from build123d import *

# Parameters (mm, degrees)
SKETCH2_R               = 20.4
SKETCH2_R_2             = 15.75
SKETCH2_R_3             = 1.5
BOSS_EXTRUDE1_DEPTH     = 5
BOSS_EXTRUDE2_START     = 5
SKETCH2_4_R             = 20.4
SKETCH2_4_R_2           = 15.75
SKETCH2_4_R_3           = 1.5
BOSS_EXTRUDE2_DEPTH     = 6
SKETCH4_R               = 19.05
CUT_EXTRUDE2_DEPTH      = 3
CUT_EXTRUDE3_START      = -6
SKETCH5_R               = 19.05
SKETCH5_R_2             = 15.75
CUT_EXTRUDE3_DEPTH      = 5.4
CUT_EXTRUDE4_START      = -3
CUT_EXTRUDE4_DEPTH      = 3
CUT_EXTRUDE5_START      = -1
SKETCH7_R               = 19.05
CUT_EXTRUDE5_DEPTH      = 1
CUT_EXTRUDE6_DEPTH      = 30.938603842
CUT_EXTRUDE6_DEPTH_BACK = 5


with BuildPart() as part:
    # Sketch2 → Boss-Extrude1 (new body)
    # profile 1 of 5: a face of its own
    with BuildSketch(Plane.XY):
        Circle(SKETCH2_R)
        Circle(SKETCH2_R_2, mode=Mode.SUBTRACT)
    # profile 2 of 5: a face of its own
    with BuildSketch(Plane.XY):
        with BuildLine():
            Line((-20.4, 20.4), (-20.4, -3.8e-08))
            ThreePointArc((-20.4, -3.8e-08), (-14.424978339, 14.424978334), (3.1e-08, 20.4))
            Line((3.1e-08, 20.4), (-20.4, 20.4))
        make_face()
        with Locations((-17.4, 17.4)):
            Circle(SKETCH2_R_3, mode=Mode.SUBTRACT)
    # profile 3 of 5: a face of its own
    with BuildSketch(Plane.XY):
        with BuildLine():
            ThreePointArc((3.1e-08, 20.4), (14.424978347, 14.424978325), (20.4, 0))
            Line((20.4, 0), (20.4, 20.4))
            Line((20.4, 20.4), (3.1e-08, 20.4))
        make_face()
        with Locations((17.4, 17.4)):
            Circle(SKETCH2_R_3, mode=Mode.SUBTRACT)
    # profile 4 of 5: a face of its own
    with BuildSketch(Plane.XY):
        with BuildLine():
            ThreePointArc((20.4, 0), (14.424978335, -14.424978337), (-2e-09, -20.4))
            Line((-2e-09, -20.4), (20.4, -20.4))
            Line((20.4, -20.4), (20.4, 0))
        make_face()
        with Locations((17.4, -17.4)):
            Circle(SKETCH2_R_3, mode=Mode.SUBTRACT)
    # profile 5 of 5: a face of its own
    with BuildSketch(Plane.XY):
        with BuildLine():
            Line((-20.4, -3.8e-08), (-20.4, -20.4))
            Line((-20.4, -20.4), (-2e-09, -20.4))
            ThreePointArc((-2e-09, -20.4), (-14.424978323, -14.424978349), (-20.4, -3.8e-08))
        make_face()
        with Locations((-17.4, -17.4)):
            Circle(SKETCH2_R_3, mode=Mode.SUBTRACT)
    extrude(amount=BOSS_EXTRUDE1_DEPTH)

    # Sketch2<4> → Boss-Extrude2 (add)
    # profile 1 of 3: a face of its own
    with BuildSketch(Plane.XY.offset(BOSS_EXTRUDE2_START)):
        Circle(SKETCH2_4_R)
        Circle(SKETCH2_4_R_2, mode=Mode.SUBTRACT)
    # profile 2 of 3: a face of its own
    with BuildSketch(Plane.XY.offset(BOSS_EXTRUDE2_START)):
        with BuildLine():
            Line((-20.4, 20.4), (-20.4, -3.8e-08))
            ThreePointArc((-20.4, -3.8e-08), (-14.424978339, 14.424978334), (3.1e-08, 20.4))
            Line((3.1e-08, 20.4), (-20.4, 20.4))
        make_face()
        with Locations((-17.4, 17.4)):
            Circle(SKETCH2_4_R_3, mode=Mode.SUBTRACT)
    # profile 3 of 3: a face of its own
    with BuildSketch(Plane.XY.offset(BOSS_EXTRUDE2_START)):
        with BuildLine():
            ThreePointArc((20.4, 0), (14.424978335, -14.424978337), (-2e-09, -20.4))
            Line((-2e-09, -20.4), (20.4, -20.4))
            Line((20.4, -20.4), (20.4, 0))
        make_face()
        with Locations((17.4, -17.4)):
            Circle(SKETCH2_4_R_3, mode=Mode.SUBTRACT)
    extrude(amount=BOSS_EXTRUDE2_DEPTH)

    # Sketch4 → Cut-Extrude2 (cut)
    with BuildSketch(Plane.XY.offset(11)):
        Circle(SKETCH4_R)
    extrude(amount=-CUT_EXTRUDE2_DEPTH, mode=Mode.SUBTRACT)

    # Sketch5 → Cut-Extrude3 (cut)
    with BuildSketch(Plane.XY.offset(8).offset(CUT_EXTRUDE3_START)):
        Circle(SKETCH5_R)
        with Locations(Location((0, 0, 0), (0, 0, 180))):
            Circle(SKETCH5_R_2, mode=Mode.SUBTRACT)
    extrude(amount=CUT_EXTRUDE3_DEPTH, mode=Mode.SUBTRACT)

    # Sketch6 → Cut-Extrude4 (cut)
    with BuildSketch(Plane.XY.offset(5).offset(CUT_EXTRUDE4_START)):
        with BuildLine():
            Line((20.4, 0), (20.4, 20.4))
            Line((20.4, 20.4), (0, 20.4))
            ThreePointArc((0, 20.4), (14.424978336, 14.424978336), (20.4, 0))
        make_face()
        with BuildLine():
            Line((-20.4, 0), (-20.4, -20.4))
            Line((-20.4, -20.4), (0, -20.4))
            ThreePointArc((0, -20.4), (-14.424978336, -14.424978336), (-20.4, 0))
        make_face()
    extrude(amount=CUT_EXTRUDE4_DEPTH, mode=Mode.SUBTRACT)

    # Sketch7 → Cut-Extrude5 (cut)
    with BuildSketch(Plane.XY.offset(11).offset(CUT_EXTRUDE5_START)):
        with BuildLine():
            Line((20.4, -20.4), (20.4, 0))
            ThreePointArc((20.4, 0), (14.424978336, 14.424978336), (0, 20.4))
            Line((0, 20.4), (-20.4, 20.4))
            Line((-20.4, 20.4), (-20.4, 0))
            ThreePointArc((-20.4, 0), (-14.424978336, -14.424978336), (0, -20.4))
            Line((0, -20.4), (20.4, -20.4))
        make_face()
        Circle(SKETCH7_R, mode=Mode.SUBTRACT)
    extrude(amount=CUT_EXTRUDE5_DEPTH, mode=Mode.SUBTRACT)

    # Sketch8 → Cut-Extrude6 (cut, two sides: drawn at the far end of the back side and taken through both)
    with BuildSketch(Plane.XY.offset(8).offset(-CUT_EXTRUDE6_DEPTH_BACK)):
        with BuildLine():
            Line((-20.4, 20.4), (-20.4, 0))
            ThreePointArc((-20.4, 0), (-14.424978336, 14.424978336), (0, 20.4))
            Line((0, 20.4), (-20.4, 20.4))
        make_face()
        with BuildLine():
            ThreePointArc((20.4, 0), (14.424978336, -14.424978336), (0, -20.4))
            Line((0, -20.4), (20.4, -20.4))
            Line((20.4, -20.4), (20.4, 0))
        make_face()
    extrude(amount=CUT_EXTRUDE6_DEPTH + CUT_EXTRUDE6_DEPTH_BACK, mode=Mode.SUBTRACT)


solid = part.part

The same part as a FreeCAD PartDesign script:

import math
import FreeCAD as App
import Part
import Sketcher


def add_polygon(sketch, points):
    """Adds a closed chain of lines whose ends are joined by coincident constraints."""
    first, n = sketch.GeometryCount, len(points)
    for a, b in zip(points, points[1:] + points[:1]):
        sketch.addGeometry(Part.LineSegment(App.Vector(*a, 0), App.Vector(*b, 0)), False)
    for i in range(n):
        sketch.addConstraint(Sketcher.Constraint("Coincident", first + i, 2, first + (i + 1) % n, 1))

doc = App.newDocument("Part")
body = doc.addObject("PartDesign::Body", "Body")

sketch1 = doc.addObject("Sketcher::SketchObject", "Sketch")
body.addObject(sketch1)
sketch1.AttachmentSupport = (doc.XY_Plane, [""])
sketch1.MapMode = "FlatFace"
add_polygon(sketch1, [(20.4, 20.4), (-20.4, 20.4), (-20.4, -20.4), (20.4, -20.4)])
sketch1.addGeometry(Part.Circle(App.Vector(0, 0, 0), App.Vector(0, 0, 1), 15.75), False)
sketch1.addGeometry(Part.Circle(App.Vector(17.4, 17.4, 0), App.Vector(0, 0, 1), 1.5), False)
sketch1.addGeometry(Part.Circle(App.Vector(-17.4, 17.4, 0), App.Vector(0, 0, 1), 1.5), False)
sketch1.addGeometry(Part.Circle(App.Vector(-17.4, -17.4, 0), App.Vector(0, 0, 1), 1.5), False)
sketch1.addGeometry(Part.Circle(App.Vector(17.4, -17.4, 0), App.Vector(0, 0, 1), 1.5), False)
sketch1.addConstraint([
    Sketcher.Constraint("Horizontal", 0),
    Sketcher.Constraint("Vertical", 1),
    Sketcher.Constraint("Horizontal", 2),
    Sketcher.Constraint("Vertical", 3),
    Sketcher.Constraint("Coincident", 4, 3, -1, 1),
    Sketcher.Constraint("Equal", 5, 6),
    Sketcher.Constraint("Equal", 6, 7),
    Sketcher.Constraint("Equal", 7, 8),
    Sketcher.Constraint("Symmetric", 5, 3, 7, 3, -1, 1),
    Sketcher.Constraint("Symmetric", 6, 3, 8, 3, -1, 1),
    Sketcher.Constraint("Symmetric", 0, 2, 2, 2, -1, 1),
    Sketcher.Constraint("Symmetric", 5, 3, 6, 3, -2),
    Sketcher.Constraint("Equal", 2, 1),
    Sketcher.Constraint("Diameter", 5, 3.0),
    Sketcher.Constraint("Diameter", 4, 31.5),
    Sketcher.Constraint("DistanceX", 0, 2, 0, 1, 40.8),
    Sketcher.Constraint("DistanceX", 0, 2, 6, 3, 3.0),
    Sketcher.Constraint("DistanceY", 6, 3, 0, 2, 3.0),
])
pad1 = doc.addObject("PartDesign::Pad", "Pad")
body.addObject(pad1)
pad1.Profile = sketch1
pad1.Length = 5

sketch2 = doc.addObject("Sketcher::SketchObject", "Sketch001")
body.addObject(sketch2)
sketch2.AttachmentSupport = (doc.XY_Plane, [""])
sketch2.MapMode = "FlatFace"
sketch2.AttachmentOffset = App.Placement(App.Vector(0, 0, 5), App.Rotation())
sketch2.addGeometry([
    Part.ArcOfCircle(Part.Circle(App.Vector(0, 0, 0), App.Vector(0, 0, 1), 20.4), math.radians(0), math.radians(90)),
    Part.LineSegment(App.Vector(0, 20.4, 0), App.Vector(-20.4, 20.4, 0)),
    Part.LineSegment(App.Vector(-20.4, 20.4, 0), App.Vector(-20.4, 0, 0)),
    Part.ArcOfCircle(Part.Circle(App.Vector(0, 0, 0), App.Vector(0, 0, 1), 20.4), math.radians(-180), math.radians(-90)),
    Part.LineSegment(App.Vector(0, -20.4, 0), App.Vector(20.4, -20.4, 0)),
    Part.LineSegment(App.Vector(20.4, -20.4, 0), App.Vector(20.4, 0, 0)),
    Part.Circle(App.Vector(0, 0, 0), App.Vector(0, 0, 1), 15.75),
    Part.Circle(App.Vector(-17.4, 17.4, 0), App.Vector(0, 0, 1), 1.5),
    Part.Circle(App.Vector(17.4, -17.4, 0), App.Vector(0, 0, 1), 1.5),
], False)
sketch2.addConstraint([
    Sketcher.Constraint("Tangent", 0, 2, 1, 1),
    Sketcher.Constraint("Coincident", 1, 2, 2, 1),
    Sketcher.Constraint("Tangent", 2, 2, 3, 1),
    Sketcher.Constraint("Tangent", 3, 2, 4, 1),
    Sketcher.Constraint("Coincident", 4, 2, 5, 1),
    Sketcher.Constraint("Tangent", 5, 2, 0, 1),
    Sketcher.Constraint("Horizontal", 1),
    Sketcher.Constraint("Vertical", 2),
    Sketcher.Constraint("Horizontal", 4),
    Sketcher.Constraint("Vertical", 5),
    Sketcher.Constraint("Coincident", 0, 3, -1, 1),
    Sketcher.Constraint("Coincident", 3, 3, -1, 1),
    Sketcher.Constraint("Coincident", 6, 3, -1, 1),
    Sketcher.Constraint("Equal", 0, 3),
    Sketcher.Constraint("Equal", 7, 8),
    Sketcher.Constraint("Symmetric", 7, 3, 8, 3, -1, 1),
    Sketcher.Constraint("Diameter", 7, 3.0),
    Sketcher.Constraint("Diameter", 6, 31.5),
    Sketcher.Constraint("Radius", 0, 20.4),
    Sketcher.Constraint("DistanceY", 7, 3, 0, 2, 3.0),
    Sketcher.Constraint("DistanceX", 1, 2, 7, 3, 3.0),
])
pad2 = doc.addObject("PartDesign::Pad", "Pad001")
body.addObject(pad2)
pad2.Profile = sketch2
pad2.Length = 6

sketch3 = doc.addObject("Sketcher::SketchObject", "Sketch002")
body.addObject(sketch3)
sketch3.AttachmentSupport = (doc.XY_Plane, [""])
sketch3.MapMode = "FlatFace"
sketch3.AttachmentOffset = App.Placement(App.Vector(0, 0, 11), App.Rotation())
sketch3.addGeometry(Part.Circle(App.Vector(0, 0, 0), App.Vector(0, 0, 1), 19.05), False)
sketch3.addConstraint([
    Sketcher.Constraint("Coincident", 0, 3, -1, 1),
    Sketcher.Constraint("Diameter", 0, 38.1),
])
pocket1 = doc.addObject("PartDesign::Pocket", "Pocket")
body.addObject(pocket1)
pocket1.Profile = sketch3
pocket1.Length = 3

sketch4 = doc.addObject("Sketcher::SketchObject", "Sketch003")
body.addObject(sketch4)
sketch4.AttachmentSupport = (doc.XY_Plane, [""])
sketch4.MapMode = "FlatFace"
sketch4.AttachmentOffset = App.Placement(App.Vector(0, 0, 2), App.Rotation())
sketch4.addGeometry([
    Part.Circle(App.Vector(0, 0, 0), App.Vector(0, 0, 1), 19.05),
    Part.Circle(App.Vector(0, 0, 0), App.Vector(0, 0, 1), 15.75),
], False)
sketch4.addConstraint([
    Sketcher.Constraint("Coincident", 0, 3, -1, 1),
    Sketcher.Constraint("Coincident", 1, 3, -1, 1),
    Sketcher.Constraint("Diameter", 0, 38.1),
    Sketcher.Constraint("Diameter", 1, 31.5),
])
pocket2 = doc.addObject("PartDesign::Pocket", "Pocket001")
body.addObject(pocket2)
pocket2.Profile = sketch4
pocket2.Length = 5.4
pocket2.Reversed = True

sketch5 = doc.addObject("Sketcher::SketchObject", "Sketch004")
body.addObject(sketch5)
sketch5.AttachmentSupport = (doc.XY_Plane, [""])
sketch5.MapMode = "FlatFace"
sketch5.AttachmentOffset = App.Placement(App.Vector(0, 0, 2), App.Rotation())
sketch5.addGeometry([
    Part.LineSegment(App.Vector(20.4, 0, 0), App.Vector(20.4, 20.4, 0)),
    Part.LineSegment(App.Vector(20.4, 20.4, 0), App.Vector(0, 20.4, 0)),
    Part.ArcOfCircle(Part.Circle(App.Vector(0, 0, 0), App.Vector(0, 0, 1), 20.4), math.radians(0), math.radians(90)),
    Part.LineSegment(App.Vector(-20.4, 0, 0), App.Vector(-20.4, -20.4, 0)),
    Part.LineSegment(App.Vector(-20.4, -20.4, 0), App.Vector(0, -20.4, 0)),
    Part.ArcOfCircle(Part.Circle(App.Vector(0, 0, 0), App.Vector(0, 0, 1), 20.4), math.radians(-180), math.radians(-90)),
], False)
sketch5.addConstraint([
    Sketcher.Constraint("Coincident", 0, 2, 1, 1),
    Sketcher.Constraint("Tangent", 1, 2, 2, 2),
    Sketcher.Constraint("Tangent", 2, 1, 0, 1),
    Sketcher.Constraint("Coincident", 3, 2, 4, 1),
    Sketcher.Constraint("Tangent", 4, 2, 5, 2),
    Sketcher.Constraint("Tangent", 5, 1, 3, 1),
    Sketcher.Constraint("Vertical", 0),
    Sketcher.Constraint("Horizontal", 1),
    Sketcher.Constraint("Vertical", 3),
    Sketcher.Constraint("Horizontal", 4),
    Sketcher.Constraint("Coincident", 2, 3, -1, 1),
    Sketcher.Constraint("Coincident", 5, 3, -1, 1),
    Sketcher.Constraint("Equal", 2, 5),
    Sketcher.Constraint("Radius", 2, 20.4),
])
pocket3 = doc.addObject("PartDesign::Pocket", "Pocket002")
body.addObject(pocket3)
pocket3.Profile = sketch5
pocket3.Length = 3
pocket3.Reversed = True

sketch6 = doc.addObject("Sketcher::SketchObject", "Sketch005")
body.addObject(sketch6)
sketch6.AttachmentSupport = (doc.XY_Plane, [""])
sketch6.MapMode = "FlatFace"
sketch6.AttachmentOffset = App.Placement(App.Vector(0, 0, 10), App.Rotation())
sketch6.addGeometry([
    Part.LineSegment(App.Vector(20.4, -20.4, 0), App.Vector(20.4, 0, 0)),
    Part.ArcOfCircle(Part.Circle(App.Vector(0, 0, 0), App.Vector(0, 0, 1), 20.4), math.radians(0), math.radians(90)),
    Part.LineSegment(App.Vector(0, 20.4, 0), App.Vector(-20.4, 20.4, 0)),
    Part.LineSegment(App.Vector(-20.4, 20.4, 0), App.Vector(-20.4, 0, 0)),
    Part.ArcOfCircle(Part.Circle(App.Vector(0, 0, 0), App.Vector(0, 0, 1), 20.4), math.radians(-180), math.radians(-90)),
    Part.LineSegment(App.Vector(0, -20.4, 0), App.Vector(20.4, -20.4, 0)),
    Part.Circle(App.Vector(0, 0, 0), App.Vector(0, 0, 1), 19.05),
], False)
sketch6.addConstraint([
    Sketcher.Constraint("Tangent", 0, 2, 1, 1),
    Sketcher.Constraint("Tangent", 1, 2, 2, 1),
    Sketcher.Constraint("Coincident", 2, 2, 3, 1),
    Sketcher.Constraint("Tangent", 3, 2, 4, 1),
    Sketcher.Constraint("Tangent", 4, 2, 5, 1),
    Sketcher.Constraint("Coincident", 5, 2, 0, 1),
    Sketcher.Constraint("Vertical", 0),
    Sketcher.Constraint("Horizontal", 2),
    Sketcher.Constraint("Vertical", 3),
    Sketcher.Constraint("Horizontal", 5),
    Sketcher.Constraint("Coincident", 1, 3, -1, 1),
    Sketcher.Constraint("Coincident", 4, 3, -1, 1),
    Sketcher.Constraint("Coincident", 6, 3, -1, 1),
    Sketcher.Constraint("Equal", 1, 4),
    Sketcher.Constraint("Diameter", 6, 38.1),
    Sketcher.Constraint("Radius", 1, 20.4),
])
pocket4 = doc.addObject("PartDesign::Pocket", "Pocket003")
body.addObject(pocket4)
pocket4.Profile = sketch6
pocket4.Length = 1
pocket4.Reversed = True

sketch7 = doc.addObject("Sketcher::SketchObject", "Sketch006")
body.addObject(sketch7)
sketch7.AttachmentSupport = (doc.XY_Plane, [""])
sketch7.MapMode = "FlatFace"
sketch7.AttachmentOffset = App.Placement(App.Vector(0, 0, 8), App.Rotation())
sketch7.addGeometry([
    Part.LineSegment(App.Vector(-20.4, 20.4, 0), App.Vector(-20.4, 0, 0)),
    Part.ArcOfCircle(Part.Circle(App.Vector(0, 0, 0), App.Vector(0, 0, 1), 20.4), math.radians(90), math.radians(180)),
    Part.LineSegment(App.Vector(0, 20.4, 0), App.Vector(-20.4, 20.4, 0)),
    Part.ArcOfCircle(Part.Circle(App.Vector(0, 0, 0), App.Vector(0, 0, 1), 20.4), math.radians(-90), math.radians(0)),
    Part.LineSegment(App.Vector(0, -20.4, 0), App.Vector(20.4, -20.4, 0)),
    Part.LineSegment(App.Vector(20.4, -20.4, 0), App.Vector(20.4, 0, 0)),
], False)
sketch7.addConstraint([
    Sketcher.Constraint("Tangent", 0, 2, 1, 2),
    Sketcher.Constraint("Tangent", 1, 1, 2, 1),
    Sketcher.Constraint("Coincident", 2, 2, 0, 1),
    Sketcher.Constraint("Tangent", 3, 1, 4, 1),
    Sketcher.Constraint("Coincident", 4, 2, 5, 1),
    Sketcher.Constraint("Tangent", 5, 2, 3, 2),
    Sketcher.Constraint("Vertical", 0),
    Sketcher.Constraint("Horizontal", 2),
    Sketcher.Constraint("Horizontal", 4),
    Sketcher.Constraint("Vertical", 5),
    Sketcher.Constraint("Coincident", 1, 3, -1, 1),
    Sketcher.Constraint("Coincident", 3, 3, -1, 1),
    Sketcher.Constraint("Equal", 1, 3),
    Sketcher.Constraint("Radius", 1, 20.4),
])
pocket5 = doc.addObject("PartDesign::Pocket", "Pocket004")
body.addObject(pocket5)
pocket5.Profile = sketch7
pocket5.Type = "TwoLengths"
pocket5.Length = 30.938604
pocket5.Length2 = 5
pocket5.Reversed = True

doc.recompute()
